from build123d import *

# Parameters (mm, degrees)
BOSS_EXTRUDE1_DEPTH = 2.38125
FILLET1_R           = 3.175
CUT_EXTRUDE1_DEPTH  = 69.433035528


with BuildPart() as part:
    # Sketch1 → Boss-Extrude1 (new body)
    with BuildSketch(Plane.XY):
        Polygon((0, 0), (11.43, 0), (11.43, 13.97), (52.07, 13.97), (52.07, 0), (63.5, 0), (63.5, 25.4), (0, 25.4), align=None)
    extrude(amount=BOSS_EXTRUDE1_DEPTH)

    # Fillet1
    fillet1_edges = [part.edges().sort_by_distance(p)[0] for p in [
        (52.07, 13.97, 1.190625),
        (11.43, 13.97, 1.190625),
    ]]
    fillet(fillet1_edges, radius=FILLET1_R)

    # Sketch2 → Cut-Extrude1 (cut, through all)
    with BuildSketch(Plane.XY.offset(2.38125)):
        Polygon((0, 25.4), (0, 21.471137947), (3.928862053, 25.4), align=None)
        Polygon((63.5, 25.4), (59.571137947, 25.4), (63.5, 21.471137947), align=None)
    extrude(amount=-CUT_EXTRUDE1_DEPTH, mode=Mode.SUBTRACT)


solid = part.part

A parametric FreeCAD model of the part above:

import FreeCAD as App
import Part
import Sketcher
Q = App.Units.Quantity


def edges_at(feature, points):
    """Names of the edges that pass closest to the given points."""
    edges = feature.Shape.Edges
    near = lambda p: min(range(len(edges)), key=lambda i: edges[i].distToShape(Part.Vertex(*p))[0])
    return sorted({f"Edge{near(p) + 1}" for p in points})

doc = App.newDocument("Part")
params = doc.addObject("Spreadsheet::Sheet", "Params")
for row, (alias, value) in enumerate([
    ("sketch1_height", "1 in"),
    ("sketch1_width", "1.6 in"),
    ("sketch1_width2", "2.5 in"),
    ("sketch1_height2", "0.55 in"),
    ("pad1_length", "0.09375 in"),
    ("fillet_radius", "0.125 in"),
    ("sketch2_length", "0.21875 in"),
], start=1):
    params.set(f"A{row}", alias)
    params.set(f"B{row}", "=" + value)
    params.setAlias(f"B{row}", alias)

body = doc.addObject("PartDesign::Body", "Body")

# Sketch on XY plane
sketch1 = doc.addObject("Sketcher::SketchObject", "Sketch")
body.addObject(sketch1)
sketch1.AttachmentSupport = (doc.XY_Plane, [""])
sketch1.MapMode = "FlatFace"
sketch1.addGeometry([
    Part.LineSegment(App.Vector(0, 0, 0), App.Vector(11, 0, 0)),  # 0
    Part.LineSegment(App.Vector(11, 0, 0), App.Vector(11, 14, 0)),  # 1
    Part.LineSegment(App.Vector(11, 14, 0), App.Vector(52, 14, 0)),  # 2
    Part.LineSegment(App.Vector(52, 14, 0), App.Vector(52, 0, 0)),  # 3
    Part.LineSegment(App.Vector(52, 0, 0), App.Vector(64, 0, 0)),  # 4
    Part.LineSegment(App.Vector(64, 0, 0), App.Vector(64, 25, 0)),  # 5
    Part.LineSegment(App.Vector(64, 25, 0), App.Vector(0, 25, 0)),  # 6
    Part.LineSegment(App.Vector(0, 25, 0), App.Vector(0, 0, 0)),  # 7
], False)
sketch1.addConstraint([
    Sketcher.Constraint("Coincident", 0, 2, 1, 1),
    Sketcher.Constraint("Coincident", 1, 2, 2, 1),
    Sketcher.Constraint("Coincident", 2, 2, 3, 1),
    Sketcher.Constraint("Coincident", 3, 2, 4, 1),
    Sketcher.Constraint("Coincident", 4, 2, 5, 1),
    Sketcher.Constraint("Coincident", 5, 2, 6, 1),
    Sketcher.Constraint("Coincident", 6, 2, 7, 1),
    Sketcher.Constraint("Coincident", 7, 2, 0, 1),
    Sketcher.Constraint("Horizontal", 0),
    Sketcher.Constraint("Vertical", 1),
    Sketcher.Constraint("Horizontal", 2),
    Sketcher.Constraint("Vertical", 3),
    Sketcher.Constraint("Horizontal", 4),
    Sketcher.Constraint("Vertical", 5),
    Sketcher.Constraint("Horizontal", 6),
    Sketcher.Constraint("Vertical", 7),
    Sketcher.Constraint("Coincident", 7, 2, -1, 1),
    Sketcher.Constraint("PointOnObject", 3, 2, -1),
    Sketcher.Constraint("Equal", 0, 4),
    Sketcher.Constraint("DistanceY", 5, 1, 5, 2, Q("1 in")),
    Sketcher.Constraint("DistanceX", 2, 1, 2, 2, Q("1.6 in")),
    Sketcher.Constraint("DistanceX", 6, 2, 6, 1, Q("2.5 in")),
    Sketcher.Constraint("DistanceY", 1, 1, 1, 2, Q("0.55 in")),
])
sketch1.setExpression("Constraints[19]", "Params.sketch1_height")
sketch1.setExpression("Constraints[20]", "Params.sketch1_width")
sketch1.setExpression("Constraints[21]", "Params.sketch1_width2")
sketch1.setExpression("Constraints[22]", "Params.sketch1_height2")
pad1 = doc.addObject("PartDesign::Pad", "Pad")
body.addObject(pad1)
pad1.Profile = sketch1
pad1.setExpression("Length", "Params.pad1_length")
doc.recompute()

fillet = doc.addObject("PartDesign::Fillet", "Fillet")
body.addObject(fillet)
fillet.Base = (pad1, edges_at(pad1, [(52.07, 13.97, 1.191), (11.43, 13.97, 1.191)]))
fillet.setExpression("Radius", "Params.fillet_radius")

# Sketch on XY plane
sketch2 = doc.addObject("Sketcher::SketchObject", "Sketch001")
body.addObject(sketch2)
sketch2.AttachmentSupport = (doc.XY_Plane, [""])
sketch2.MapMode = "FlatFace"
sketch2.AttachmentOffset = App.Placement(App.Vector(0, 0, 0.09375 * 25.4), App.Rotation())
sketch2.addGeometry([
    Part.LineSegment(App.Vector(0, 25.4, 0), App.Vector(0, 21.5, 0)),  # 0
    Part.LineSegment(App.Vector(0, 21.5, 0), App.Vector(3.9, 25.4, 0)),  # 1
    Part.LineSegment(App.Vector(3.9, 25.4, 0), App.Vector(0, 25.4, 0)),  # 2
    Part.LineSegment(App.Vector(63.5, 25.4, 0), App.Vector(59.6, 25.4, 0)),  # 3
    Part.LineSegment(App.Vector(59.6, 25.4, 0), App.Vector(63.5, 21.5, 0)),  # 4
    Part.LineSegment(App.Vector(63.5, 21.5, 0), App.Vector(63.5, 25.4, 0)),  # 5
], False)
sketch2.addConstraint([
    Sketcher.Constraint("Coincident", 0, 2, 1, 1),
    Sketcher.Constraint("Coincident", 1, 2, 2, 1),
    Sketcher.Constraint("Coincident", 2, 2, 0, 1),
    Sketcher.Constraint("Coincident", 3, 2, 4, 1),
    Sketcher.Constraint("Coincident", 4, 2, 5, 1),
    Sketcher.Constraint("Coincident", 5, 2, 3, 1),
    Sketcher.Constraint("Vertical", 0),
    Sketcher.Constraint("Horizontal", 2),
    Sketcher.Constraint("Horizontal", 3),
    Sketcher.Constraint("Vertical", 5),
    Sketcher.Constraint("PointOnObject", 0, 2, -2),
    Sketcher.Constraint("Perpendicular", 1, 4),
    Sketcher.Constraint("Horizontal", 2, 2, 3, 2),
    Sketcher.Constraint("Horizontal", 0, 2, 4, 2),
    Sketcher.Constraint("Equal", 2, 3),
    Sketcher.Constraint("DistanceY", -1, 1, 1, 2, Q("1 in")),
    Sketcher.Constraint("DistanceX", -1, 1, 4, 2, Q("2.5 in")),
    Sketcher.Constraint("Distance", 1, Q("0.21875 in")),
])
sketch2.setExpression("Constraints[17]", "Params.sketch2_length")
pocket1 = doc.addObject("PartDesign::Pocket", "Pocket")
body.addObject(pocket1)
pocket1.Profile = sketch2
pocket1.Type = "ThroughAll"

doc.recompute()
